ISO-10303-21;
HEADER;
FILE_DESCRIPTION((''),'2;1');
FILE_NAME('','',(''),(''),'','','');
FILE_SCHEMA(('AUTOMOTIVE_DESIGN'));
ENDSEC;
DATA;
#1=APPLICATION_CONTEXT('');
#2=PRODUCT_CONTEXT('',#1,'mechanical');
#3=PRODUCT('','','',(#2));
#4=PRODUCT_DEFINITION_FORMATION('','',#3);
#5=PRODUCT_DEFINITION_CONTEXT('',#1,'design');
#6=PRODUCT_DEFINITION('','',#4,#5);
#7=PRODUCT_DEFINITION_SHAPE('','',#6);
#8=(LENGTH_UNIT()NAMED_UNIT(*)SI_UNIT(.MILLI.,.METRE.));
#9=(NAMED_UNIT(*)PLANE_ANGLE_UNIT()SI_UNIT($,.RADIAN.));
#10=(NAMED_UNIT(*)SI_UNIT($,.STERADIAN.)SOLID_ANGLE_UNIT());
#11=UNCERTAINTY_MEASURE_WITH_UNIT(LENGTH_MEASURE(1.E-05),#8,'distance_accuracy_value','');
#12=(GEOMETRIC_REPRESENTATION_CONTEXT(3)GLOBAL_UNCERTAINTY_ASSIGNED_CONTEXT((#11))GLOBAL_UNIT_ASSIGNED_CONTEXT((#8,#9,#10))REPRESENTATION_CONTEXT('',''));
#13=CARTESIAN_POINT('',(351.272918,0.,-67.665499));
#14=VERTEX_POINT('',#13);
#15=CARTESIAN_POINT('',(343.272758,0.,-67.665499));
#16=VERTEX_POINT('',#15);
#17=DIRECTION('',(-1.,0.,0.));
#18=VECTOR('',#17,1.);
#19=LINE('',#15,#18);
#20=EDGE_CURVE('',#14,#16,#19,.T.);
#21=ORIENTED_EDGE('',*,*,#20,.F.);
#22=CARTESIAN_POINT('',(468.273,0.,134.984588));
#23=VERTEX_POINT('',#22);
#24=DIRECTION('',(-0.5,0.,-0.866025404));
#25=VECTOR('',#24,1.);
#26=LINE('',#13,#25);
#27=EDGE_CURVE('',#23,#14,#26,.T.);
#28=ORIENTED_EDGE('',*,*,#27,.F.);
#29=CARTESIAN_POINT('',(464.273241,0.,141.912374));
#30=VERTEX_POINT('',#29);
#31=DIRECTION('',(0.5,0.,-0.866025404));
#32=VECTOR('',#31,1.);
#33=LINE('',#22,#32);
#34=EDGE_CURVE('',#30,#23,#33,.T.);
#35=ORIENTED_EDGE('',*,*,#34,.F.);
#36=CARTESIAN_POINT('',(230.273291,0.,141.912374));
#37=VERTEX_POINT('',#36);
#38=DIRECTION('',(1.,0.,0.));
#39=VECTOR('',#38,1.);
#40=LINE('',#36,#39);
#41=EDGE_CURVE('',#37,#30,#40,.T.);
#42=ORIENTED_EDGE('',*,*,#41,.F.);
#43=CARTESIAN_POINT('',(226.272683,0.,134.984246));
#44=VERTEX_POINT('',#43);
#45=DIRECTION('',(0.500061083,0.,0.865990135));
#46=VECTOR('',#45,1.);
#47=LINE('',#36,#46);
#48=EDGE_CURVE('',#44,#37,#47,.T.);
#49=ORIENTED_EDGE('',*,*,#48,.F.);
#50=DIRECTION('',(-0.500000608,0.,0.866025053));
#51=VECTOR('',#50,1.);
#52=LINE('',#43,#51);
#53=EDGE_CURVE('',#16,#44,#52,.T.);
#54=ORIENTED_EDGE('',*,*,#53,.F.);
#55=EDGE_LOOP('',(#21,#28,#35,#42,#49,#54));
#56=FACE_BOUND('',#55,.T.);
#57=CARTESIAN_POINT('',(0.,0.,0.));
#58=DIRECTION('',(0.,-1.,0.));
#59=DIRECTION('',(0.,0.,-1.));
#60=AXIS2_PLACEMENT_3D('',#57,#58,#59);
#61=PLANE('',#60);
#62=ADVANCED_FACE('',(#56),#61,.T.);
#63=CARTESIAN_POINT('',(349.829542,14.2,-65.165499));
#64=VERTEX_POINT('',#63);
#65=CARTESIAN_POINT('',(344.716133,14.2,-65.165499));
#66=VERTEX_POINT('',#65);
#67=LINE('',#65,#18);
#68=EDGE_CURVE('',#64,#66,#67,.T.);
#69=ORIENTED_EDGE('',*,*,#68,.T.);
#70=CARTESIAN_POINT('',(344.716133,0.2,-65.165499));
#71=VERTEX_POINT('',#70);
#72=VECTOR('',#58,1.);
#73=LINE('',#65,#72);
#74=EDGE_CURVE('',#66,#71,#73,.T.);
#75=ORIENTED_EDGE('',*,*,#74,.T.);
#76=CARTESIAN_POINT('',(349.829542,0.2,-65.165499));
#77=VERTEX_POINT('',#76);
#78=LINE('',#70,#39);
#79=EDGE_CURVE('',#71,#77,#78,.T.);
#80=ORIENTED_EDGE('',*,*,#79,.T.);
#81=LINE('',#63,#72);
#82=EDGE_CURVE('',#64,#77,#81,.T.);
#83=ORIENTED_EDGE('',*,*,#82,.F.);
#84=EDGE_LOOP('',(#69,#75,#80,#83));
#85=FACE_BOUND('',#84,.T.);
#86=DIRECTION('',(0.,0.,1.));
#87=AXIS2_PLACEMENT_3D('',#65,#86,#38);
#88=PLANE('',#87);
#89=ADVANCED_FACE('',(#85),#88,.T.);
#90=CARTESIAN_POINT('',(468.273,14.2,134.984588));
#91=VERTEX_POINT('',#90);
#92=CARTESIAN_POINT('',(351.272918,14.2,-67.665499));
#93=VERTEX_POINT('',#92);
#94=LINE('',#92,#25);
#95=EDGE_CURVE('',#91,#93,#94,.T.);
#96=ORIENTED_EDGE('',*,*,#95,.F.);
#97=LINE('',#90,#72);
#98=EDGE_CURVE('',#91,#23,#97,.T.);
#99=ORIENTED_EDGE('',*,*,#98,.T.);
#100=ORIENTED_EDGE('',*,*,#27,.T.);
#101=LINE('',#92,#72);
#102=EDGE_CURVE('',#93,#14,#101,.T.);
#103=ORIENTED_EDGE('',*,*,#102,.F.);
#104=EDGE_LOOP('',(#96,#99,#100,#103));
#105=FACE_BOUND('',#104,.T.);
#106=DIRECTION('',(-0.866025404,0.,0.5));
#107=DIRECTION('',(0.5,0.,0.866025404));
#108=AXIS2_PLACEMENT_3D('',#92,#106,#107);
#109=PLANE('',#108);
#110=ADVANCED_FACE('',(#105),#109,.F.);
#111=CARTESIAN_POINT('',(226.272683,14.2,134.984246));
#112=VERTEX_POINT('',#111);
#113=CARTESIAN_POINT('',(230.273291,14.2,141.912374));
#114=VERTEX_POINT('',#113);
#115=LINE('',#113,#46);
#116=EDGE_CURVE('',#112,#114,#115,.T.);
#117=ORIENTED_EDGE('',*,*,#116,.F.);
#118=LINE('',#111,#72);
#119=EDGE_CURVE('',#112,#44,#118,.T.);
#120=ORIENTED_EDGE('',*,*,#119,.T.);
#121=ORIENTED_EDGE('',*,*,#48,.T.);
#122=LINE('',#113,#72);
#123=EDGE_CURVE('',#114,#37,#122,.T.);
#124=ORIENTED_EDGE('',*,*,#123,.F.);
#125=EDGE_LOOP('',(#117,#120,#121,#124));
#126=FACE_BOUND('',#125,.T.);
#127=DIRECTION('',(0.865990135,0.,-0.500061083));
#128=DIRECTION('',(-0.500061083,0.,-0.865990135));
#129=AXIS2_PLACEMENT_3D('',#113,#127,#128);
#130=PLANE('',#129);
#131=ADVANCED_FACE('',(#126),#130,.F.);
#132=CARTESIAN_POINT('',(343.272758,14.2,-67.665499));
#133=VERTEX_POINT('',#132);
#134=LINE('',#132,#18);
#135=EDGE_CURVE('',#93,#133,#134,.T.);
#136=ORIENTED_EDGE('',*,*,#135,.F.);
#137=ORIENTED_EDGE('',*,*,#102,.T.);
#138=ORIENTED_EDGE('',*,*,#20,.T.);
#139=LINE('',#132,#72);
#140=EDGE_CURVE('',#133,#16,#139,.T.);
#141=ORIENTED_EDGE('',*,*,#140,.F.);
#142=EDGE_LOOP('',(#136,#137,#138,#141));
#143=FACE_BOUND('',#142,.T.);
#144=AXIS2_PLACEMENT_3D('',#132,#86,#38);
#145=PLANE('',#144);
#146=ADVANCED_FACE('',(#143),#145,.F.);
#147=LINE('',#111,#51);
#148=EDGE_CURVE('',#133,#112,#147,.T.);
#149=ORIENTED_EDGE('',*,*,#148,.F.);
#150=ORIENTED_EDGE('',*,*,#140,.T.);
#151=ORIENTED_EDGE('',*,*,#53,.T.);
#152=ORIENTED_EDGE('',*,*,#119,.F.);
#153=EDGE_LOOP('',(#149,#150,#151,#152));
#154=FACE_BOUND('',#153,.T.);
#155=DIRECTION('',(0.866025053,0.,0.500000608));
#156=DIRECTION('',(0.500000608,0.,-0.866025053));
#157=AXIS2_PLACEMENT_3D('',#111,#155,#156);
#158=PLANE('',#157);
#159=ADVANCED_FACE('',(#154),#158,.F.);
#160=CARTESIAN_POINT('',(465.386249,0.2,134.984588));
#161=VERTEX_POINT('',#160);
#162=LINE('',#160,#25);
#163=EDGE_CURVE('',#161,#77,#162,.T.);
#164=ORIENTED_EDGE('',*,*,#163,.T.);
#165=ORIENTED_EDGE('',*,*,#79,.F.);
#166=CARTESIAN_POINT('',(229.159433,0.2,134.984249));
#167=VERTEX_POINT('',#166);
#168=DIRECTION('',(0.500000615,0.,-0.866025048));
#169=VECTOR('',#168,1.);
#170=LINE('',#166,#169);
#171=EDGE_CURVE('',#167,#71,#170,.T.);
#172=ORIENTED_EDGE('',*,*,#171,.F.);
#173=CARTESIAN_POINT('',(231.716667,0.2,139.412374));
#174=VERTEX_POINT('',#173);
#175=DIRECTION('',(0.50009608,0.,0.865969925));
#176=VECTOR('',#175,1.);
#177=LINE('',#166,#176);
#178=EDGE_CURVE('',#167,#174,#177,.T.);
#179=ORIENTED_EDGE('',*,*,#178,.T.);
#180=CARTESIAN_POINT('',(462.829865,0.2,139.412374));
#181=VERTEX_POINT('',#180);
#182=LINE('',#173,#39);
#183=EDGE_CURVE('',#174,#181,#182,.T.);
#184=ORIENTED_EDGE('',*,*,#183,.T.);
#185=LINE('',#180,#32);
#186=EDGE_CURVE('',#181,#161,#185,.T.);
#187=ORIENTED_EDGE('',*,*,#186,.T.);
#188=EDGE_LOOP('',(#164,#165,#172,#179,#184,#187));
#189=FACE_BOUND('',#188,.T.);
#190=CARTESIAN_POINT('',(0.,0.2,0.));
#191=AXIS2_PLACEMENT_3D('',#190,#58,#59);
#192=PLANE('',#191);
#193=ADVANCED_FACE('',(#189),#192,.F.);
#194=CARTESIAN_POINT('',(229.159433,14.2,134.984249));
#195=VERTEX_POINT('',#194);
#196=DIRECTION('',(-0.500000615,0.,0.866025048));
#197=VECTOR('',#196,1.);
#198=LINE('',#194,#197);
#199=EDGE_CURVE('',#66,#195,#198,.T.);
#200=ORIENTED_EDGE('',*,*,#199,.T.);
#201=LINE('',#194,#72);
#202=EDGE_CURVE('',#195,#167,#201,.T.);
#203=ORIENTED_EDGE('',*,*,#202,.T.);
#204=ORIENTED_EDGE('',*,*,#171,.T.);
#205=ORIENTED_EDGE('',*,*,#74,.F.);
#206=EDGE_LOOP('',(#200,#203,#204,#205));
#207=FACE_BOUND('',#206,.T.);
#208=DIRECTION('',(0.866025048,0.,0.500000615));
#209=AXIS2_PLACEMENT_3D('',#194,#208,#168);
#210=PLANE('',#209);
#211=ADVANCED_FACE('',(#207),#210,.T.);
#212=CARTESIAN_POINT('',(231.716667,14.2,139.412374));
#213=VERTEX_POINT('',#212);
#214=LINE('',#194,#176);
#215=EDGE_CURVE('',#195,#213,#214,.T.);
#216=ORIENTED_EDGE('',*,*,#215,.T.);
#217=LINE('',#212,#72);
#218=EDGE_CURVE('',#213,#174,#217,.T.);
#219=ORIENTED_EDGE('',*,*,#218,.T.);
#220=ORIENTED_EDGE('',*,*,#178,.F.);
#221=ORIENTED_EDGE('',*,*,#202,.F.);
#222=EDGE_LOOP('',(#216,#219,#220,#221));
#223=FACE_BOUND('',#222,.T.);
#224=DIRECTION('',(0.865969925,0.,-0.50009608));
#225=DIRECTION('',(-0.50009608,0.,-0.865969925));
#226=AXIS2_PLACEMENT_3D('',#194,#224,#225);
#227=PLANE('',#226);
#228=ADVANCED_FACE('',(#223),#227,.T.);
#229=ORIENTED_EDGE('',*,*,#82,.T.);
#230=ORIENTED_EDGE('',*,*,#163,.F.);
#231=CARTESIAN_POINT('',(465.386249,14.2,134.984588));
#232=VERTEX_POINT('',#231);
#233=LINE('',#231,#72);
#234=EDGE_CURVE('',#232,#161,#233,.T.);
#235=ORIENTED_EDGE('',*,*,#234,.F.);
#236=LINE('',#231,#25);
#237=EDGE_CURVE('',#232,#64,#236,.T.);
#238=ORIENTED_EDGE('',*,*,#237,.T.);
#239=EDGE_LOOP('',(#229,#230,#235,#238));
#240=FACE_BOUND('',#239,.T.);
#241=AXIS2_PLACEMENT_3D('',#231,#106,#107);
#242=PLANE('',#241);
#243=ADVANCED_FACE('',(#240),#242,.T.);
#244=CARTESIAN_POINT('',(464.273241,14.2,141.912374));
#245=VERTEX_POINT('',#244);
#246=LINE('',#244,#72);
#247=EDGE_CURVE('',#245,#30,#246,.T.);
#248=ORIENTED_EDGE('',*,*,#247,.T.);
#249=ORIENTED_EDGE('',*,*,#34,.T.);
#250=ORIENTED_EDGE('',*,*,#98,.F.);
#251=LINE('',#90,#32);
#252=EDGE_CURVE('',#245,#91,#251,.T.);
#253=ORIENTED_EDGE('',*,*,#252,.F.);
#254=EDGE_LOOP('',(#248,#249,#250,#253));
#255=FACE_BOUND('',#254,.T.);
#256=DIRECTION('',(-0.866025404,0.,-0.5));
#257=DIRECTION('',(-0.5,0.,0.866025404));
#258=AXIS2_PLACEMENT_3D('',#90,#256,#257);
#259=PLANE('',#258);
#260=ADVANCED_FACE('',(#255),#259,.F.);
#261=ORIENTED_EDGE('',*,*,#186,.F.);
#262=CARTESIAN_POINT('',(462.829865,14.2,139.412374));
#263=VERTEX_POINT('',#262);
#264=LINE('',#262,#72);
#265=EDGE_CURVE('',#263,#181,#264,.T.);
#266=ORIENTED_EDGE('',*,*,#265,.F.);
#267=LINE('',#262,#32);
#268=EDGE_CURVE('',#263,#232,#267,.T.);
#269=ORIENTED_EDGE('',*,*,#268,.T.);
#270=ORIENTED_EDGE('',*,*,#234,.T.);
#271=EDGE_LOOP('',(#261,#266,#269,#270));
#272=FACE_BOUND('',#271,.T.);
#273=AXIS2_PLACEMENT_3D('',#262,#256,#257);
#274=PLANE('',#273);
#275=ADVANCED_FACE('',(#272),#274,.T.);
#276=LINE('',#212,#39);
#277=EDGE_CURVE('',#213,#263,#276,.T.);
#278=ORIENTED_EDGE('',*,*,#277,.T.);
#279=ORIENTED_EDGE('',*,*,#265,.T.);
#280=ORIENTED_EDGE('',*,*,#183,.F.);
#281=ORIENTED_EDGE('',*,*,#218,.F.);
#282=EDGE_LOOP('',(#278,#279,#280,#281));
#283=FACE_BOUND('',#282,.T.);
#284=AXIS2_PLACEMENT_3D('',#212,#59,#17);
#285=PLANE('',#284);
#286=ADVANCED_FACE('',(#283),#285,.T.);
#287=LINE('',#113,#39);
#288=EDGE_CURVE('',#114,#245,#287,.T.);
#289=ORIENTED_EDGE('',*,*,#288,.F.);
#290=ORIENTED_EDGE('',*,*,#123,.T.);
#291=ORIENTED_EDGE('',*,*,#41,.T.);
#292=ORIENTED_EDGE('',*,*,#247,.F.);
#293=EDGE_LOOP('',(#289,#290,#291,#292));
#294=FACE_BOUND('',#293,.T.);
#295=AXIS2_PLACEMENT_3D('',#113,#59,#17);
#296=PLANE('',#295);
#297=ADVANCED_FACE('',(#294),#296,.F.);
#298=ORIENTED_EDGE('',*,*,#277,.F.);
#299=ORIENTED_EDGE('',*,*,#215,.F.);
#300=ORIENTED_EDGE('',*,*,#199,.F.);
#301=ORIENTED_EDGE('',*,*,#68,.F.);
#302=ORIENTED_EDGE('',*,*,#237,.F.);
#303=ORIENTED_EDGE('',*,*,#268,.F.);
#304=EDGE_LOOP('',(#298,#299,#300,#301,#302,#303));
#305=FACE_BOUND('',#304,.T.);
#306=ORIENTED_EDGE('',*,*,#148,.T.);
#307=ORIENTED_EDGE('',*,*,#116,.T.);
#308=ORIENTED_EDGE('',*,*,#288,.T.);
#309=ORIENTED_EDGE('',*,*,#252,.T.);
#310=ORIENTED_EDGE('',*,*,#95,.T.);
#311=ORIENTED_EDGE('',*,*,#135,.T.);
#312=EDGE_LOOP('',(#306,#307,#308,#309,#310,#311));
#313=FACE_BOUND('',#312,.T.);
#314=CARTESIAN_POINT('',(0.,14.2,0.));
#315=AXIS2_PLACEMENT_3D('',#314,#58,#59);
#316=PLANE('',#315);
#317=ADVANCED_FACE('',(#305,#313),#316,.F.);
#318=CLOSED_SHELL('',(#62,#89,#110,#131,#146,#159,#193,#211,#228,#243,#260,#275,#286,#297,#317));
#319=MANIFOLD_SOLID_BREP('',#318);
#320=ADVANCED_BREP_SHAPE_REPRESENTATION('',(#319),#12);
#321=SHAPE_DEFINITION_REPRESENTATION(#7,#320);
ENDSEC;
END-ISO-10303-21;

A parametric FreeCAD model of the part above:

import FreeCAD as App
import Part
import Sketcher
from FreeCAD import Vector
Q = App.Units.Quantity

doc = App.newDocument("Part")
body = doc.addObject("PartDesign::Body", "Body")

# Sketch on XZ plane
sketch1 = body.newObject("Sketcher::SketchObject", "Sketch")
sketch1.AttachmentSupport = (doc.getObject("XZ_Plane"), [""])
sketch1.MapMode = "FlatFace"
sketch1.addGeometry([
    Part.LineSegment(Vector(231.716667, 139.412374, 0), Vector(462.829865, 139.412374, 0)),  # 0
    Part.LineSegment(Vector(462.829865, 139.412374, 0), Vector(465.386249, 134.984588, 0)),  # 1
    Part.LineSegment(Vector(465.386249, 134.984588, 0), Vector(349.829542, -65.165499, 0)),  # 2
    Part.LineSegment(Vector(349.829542, -65.165499, 0), Vector(344.716133, -65.165499, 0)),  # 3
    Part.LineSegment(Vector(344.716133, -65.165499, 0), Vector(229.159433, 134.984249, 0)),  # 4
    Part.LineSegment(Vector(229.159433, 134.984249, 0), Vector(231.716667, 139.412374, 0)),  # 5
], False)
sketch1.addConstraint([
    Sketcher.Constraint("Coincident", 0, 2, 1, 1),
    Sketcher.Constraint("Coincident", 1, 2, 2, 1),
    Sketcher.Constraint("Coincident", 2, 2, 3, 1),
    Sketcher.Constraint("Coincident", 3, 2, 4, 1),
    Sketcher.Constraint("Coincident", 4, 2, 5, 1),
    Sketcher.Constraint("Coincident", 5, 2, 0, 1),
    Sketcher.Constraint("Horizontal", 0),
    Sketcher.Constraint("Horizontal", 3),
    Sketcher.Constraint("DistanceX", 0, 1, 0, 2, Q("231.113199 mm")),
    Sketcher.Constraint("DistanceX", 3, 2, 3, 1, Q("5.113409 mm")),
    Sketcher.Constraint("DistanceY", 2, 2, -1, 1, Q("65.165499 mm")),
    Sketcher.Constraint("DistanceX", 4, 2, 3, 2, Q("115.556701 mm")),
    Sketcher.Constraint("DistanceX", -1, 1, 1, 2, Q("465.386249 mm")),
    Sketcher.Constraint("DistanceY", -1, 1, 1, 2, Q("134.984588 mm")),
    Sketcher.Constraint("DistanceY", -1, 1, 4, 2, Q("134.984249 mm")),
    Sketcher.Constraint("Distance", 1, Q("5.112767 mm")),
    Sketcher.Constraint("Distance", 2, Q("231.113413 mm")),
    Sketcher.Constraint("Distance", 5, Q("5.113485 mm")),
])
pad1 = body.newObject("PartDesign::Pad", "Pad")
pad1.Profile = sketch1
pad1.Length = 0.2
pad1.Reversed = True

# Sketch on XZ plane
sketch2 = body.newObject("Sketcher::SketchObject", "Sketch001")
sketch2.AttachmentSupport = (doc.getObject("XZ_Plane"), [""])
sketch2.MapMode = "FlatFace"
sketch2.addGeometry([
    Part.LineSegment(Vector(468.273, 134.984588, 0), Vector(351.272918, -67.665499, 0)),  # 0
    Part.LineSegment(Vector(351.272918, -67.665499, 0), Vector(343.272758, -67.665499, 0)),  # 1
    Part.LineSegment(Vector(343.272758, -67.665499, 0), Vector(226.272683, 134.984246, 0)),  # 2
    Part.LineSegment(Vector(226.272683, 134.984246, 0), Vector(230.273291, 141.912374, 0)),  # 3
    Part.LineSegment(Vector(230.273291, 141.912374, 0), Vector(464.273241, 141.912374, 0)),  # 4
    Part.LineSegment(Vector(464.273241, 141.912374, 0), Vector(468.273, 134.984588, 0)),  # 5
    Part.LineSegment(Vector(231.716667, 139.412374, 0), Vector(229.159433, 134.984249, 0)),  # 6
    Part.LineSegment(Vector(229.159433, 134.984249, 0), Vector(344.716133, -65.165499, 0)),  # 7
    Part.LineSegment(Vector(344.716133, -65.165499, 0), Vector(349.829542, -65.165499, 0)),  # 8
    Part.LineSegment(Vector(349.829542, -65.165499, 0), Vector(465.386249, 134.984588, 0)),  # 9
    Part.LineSegment(Vector(465.386249, 134.984588, 0), Vector(462.829865, 139.412374, 0)),  # 10
    Part.LineSegment(Vector(462.829865, 139.412374, 0), Vector(231.716667, 139.412374, 0)),  # 11
], False)
sketch2.addConstraint([
    Sketcher.Constraint("Coincident", 0, 2, 1, 1),
    Sketcher.Constraint("Coincident", 1, 2, 2, 1),
    Sketcher.Constraint("Coincident", 2, 2, 3, 1),
    Sketcher.Constraint("Coincident", 3, 2, 4, 1),
    Sketcher.Constraint("Coincident", 4, 2, 5, 1),
    Sketcher.Constraint("Coincident", 5, 2, 0, 1),
    Sketcher.Constraint("Coincident", 6, 2, 7, 1),
    Sketcher.Constraint("Coincident", 7, 2, 8, 1),
    Sketcher.Constraint("Coincident", 8, 2, 9, 1),
    Sketcher.Constraint("Coincident", 9, 2, 10, 1),
    Sketcher.Constraint("Coincident", 10, 2, 11, 1),
    Sketcher.Constraint("Coincident", 11, 2, 6, 1),
    Sketcher.Constraint("Horizontal", 1),
    Sketcher.Constraint("Horizontal", 4),
    Sketcher.Constraint("Horizontal", 8),
    Sketcher.Constraint("Horizontal", 11),
    Sketcher.Constraint("DistanceY", 1, 2, 7, 2, Q("2.5 mm")),
    Sketcher.Constraint("DistanceY", 10, 2, 4, 2, Q("2.5 mm")),
    Sketcher.Constraint("DistanceX", 11, 2, 11, 1, Q("231.113199 mm")),
    Sketcher.Constraint("DistanceX", -1, 1, 5, 2, Q("468.273 mm")),
    Sketcher.Constraint("DistanceX", 1, 2, 1, 1, Q("8.00016 mm")),
    Sketcher.Constraint("DistanceX", 4, 1, 4, 2, Q("233.99995 mm")),
    Sketcher.Constraint("DistanceX", 8, 1, 8, 2, Q("5.113409 mm")),
    Sketcher.Constraint("DistanceY", 0, 2, -1, 1, Q("67.665499 mm")),
    Sketcher.Constraint("DistanceX", 6, 2, 7, 2, Q("115.556701 mm")),
    Sketcher.Constraint("Distance", 3, Q("8.000239 mm")),
    Sketcher.Constraint("Distance", 5, Q("7.999518 mm")),
    Sketcher.Constraint("DistanceX", -1, 1, 3, 2, Q("230.273291 mm")),
    Sketcher.Constraint("DistanceY", -1, 1, 5, 2, Q("134.984588 mm")),
    Sketcher.Constraint("DistanceY", -1, 1, 6, 2, Q("134.984249 mm")),
    Sketcher.Constraint("DistanceX", -1, 1, 9, 2, Q("465.386249 mm")),
    Sketcher.Constraint("DistanceY", -1, 1, 9, 2, Q("134.984588 mm")),
    Sketcher.Constraint("DistanceX", 2, 2, 4, 2, Q("238.000558 mm")),
    Sketcher.Constraint("DistanceX", 2, 2, 6, 2, Q("2.88675 mm")),
    Sketcher.Constraint("DistanceX", 0, 2, 9, 2, Q("114.113331 mm")),
    Sketcher.Constraint("Distance", 6, Q("5.113485 mm")),
])
pad2 = body.newObject("PartDesign::Pad", "Pad001")
pad2.Profile = sketch2
pad2.Length = 14.2
pad2.Reversed = True

doc.recompute()
